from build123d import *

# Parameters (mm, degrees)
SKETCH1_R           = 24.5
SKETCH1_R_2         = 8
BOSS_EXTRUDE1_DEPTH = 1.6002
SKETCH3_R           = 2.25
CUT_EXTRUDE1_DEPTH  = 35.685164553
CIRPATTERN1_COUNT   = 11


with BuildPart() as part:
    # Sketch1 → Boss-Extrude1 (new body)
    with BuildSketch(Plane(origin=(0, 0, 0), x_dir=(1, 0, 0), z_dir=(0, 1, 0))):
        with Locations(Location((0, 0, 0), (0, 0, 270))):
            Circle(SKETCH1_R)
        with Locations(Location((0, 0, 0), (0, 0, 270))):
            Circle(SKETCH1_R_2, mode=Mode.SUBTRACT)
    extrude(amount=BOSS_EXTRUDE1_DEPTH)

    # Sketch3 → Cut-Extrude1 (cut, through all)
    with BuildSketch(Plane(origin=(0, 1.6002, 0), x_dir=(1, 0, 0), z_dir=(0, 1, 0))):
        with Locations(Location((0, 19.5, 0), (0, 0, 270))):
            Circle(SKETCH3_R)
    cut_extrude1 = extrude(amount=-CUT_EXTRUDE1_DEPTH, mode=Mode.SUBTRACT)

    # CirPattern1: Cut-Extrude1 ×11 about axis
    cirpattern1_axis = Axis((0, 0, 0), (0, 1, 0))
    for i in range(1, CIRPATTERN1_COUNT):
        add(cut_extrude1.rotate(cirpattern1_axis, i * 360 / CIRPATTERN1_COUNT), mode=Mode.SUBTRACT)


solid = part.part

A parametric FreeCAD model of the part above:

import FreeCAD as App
import Part
import Sketcher
from FreeCAD import Vector
Q = App.Units.Quantity

doc = App.newDocument("Part")
body = doc.addObject("PartDesign::Body", "Body")

# Sketch on XZ plane
sketch1 = doc.addObject("Sketcher::SketchObject", "Sketch")
body.addObject(sketch1)
sketch1.AttachmentSupport = (doc.XZ_Plane, [""])
sketch1.MapMode = "FlatFace"
sketch1.addGeometry([
    Part.Circle(Vector(0, 0, 0), Vector(0, 0, 1), 24),
    Part.Circle(Vector(0, 0, 0), Vector(0, 0, 1), 8),
], False)
sketch1.addConstraint([
    Sketcher.Constraint("Coincident", 0, 3, -1, 1),
    Sketcher.Constraint("Coincident", 1, 3, -1, 1),
    Sketcher.Constraint("Diameter", 0, Q("49 mm")),
    Sketcher.Constraint("Diameter", 1, Q("16 mm")),
])
pad1 = doc.addObject("PartDesign::Pad", "Pad")
body.addObject(pad1)
pad1.Profile = sketch1
pad1.Length = 1.6002
pad1.Reversed = True

# Sketch on XZ plane
sketch2 = doc.addObject("Sketcher::SketchObject", "Sketch001")
body.addObject(sketch2)
sketch2.AttachmentSupport = (doc.XZ_Plane, [""])
sketch2.MapMode = "FlatFace"
sketch2.AttachmentOffset = App.Placement(Vector(0, 0, -1.6002), App.Rotation())
sketch2.addGeometry(Part.Circle(Vector(0, -19.5, 0), Vector(0, 0, 1), 2.2), False)
sketch2.addConstraint([
    Sketcher.Constraint("PointOnObject", 0, 3, -2),
    Sketcher.Constraint("Diameter", 0, Q("4.5 mm")),
    Sketcher.Constraint("DistanceY", 0, 3, -1, 1, Q("19.5 mm")),
])
pocket1 = doc.addObject("PartDesign::Pocket", "Pocket")
body.addObject(pocket1)
pocket1.Profile = sketch2
pocket1.Type = "ThroughAll"
pocket1.Reversed = True
doc.recompute()

polarpattern = doc.addObject("PartDesign::PolarPattern", "PolarPattern")
body.addObject(polarpattern)
polarpattern.Originals = [pocket1]
polarpattern.Axis = (doc.Y_Axis, [""])
polarpattern.Angle = 360
polarpattern.Occurrences = 11
body.Tip = polarpattern

doc.recompute()
